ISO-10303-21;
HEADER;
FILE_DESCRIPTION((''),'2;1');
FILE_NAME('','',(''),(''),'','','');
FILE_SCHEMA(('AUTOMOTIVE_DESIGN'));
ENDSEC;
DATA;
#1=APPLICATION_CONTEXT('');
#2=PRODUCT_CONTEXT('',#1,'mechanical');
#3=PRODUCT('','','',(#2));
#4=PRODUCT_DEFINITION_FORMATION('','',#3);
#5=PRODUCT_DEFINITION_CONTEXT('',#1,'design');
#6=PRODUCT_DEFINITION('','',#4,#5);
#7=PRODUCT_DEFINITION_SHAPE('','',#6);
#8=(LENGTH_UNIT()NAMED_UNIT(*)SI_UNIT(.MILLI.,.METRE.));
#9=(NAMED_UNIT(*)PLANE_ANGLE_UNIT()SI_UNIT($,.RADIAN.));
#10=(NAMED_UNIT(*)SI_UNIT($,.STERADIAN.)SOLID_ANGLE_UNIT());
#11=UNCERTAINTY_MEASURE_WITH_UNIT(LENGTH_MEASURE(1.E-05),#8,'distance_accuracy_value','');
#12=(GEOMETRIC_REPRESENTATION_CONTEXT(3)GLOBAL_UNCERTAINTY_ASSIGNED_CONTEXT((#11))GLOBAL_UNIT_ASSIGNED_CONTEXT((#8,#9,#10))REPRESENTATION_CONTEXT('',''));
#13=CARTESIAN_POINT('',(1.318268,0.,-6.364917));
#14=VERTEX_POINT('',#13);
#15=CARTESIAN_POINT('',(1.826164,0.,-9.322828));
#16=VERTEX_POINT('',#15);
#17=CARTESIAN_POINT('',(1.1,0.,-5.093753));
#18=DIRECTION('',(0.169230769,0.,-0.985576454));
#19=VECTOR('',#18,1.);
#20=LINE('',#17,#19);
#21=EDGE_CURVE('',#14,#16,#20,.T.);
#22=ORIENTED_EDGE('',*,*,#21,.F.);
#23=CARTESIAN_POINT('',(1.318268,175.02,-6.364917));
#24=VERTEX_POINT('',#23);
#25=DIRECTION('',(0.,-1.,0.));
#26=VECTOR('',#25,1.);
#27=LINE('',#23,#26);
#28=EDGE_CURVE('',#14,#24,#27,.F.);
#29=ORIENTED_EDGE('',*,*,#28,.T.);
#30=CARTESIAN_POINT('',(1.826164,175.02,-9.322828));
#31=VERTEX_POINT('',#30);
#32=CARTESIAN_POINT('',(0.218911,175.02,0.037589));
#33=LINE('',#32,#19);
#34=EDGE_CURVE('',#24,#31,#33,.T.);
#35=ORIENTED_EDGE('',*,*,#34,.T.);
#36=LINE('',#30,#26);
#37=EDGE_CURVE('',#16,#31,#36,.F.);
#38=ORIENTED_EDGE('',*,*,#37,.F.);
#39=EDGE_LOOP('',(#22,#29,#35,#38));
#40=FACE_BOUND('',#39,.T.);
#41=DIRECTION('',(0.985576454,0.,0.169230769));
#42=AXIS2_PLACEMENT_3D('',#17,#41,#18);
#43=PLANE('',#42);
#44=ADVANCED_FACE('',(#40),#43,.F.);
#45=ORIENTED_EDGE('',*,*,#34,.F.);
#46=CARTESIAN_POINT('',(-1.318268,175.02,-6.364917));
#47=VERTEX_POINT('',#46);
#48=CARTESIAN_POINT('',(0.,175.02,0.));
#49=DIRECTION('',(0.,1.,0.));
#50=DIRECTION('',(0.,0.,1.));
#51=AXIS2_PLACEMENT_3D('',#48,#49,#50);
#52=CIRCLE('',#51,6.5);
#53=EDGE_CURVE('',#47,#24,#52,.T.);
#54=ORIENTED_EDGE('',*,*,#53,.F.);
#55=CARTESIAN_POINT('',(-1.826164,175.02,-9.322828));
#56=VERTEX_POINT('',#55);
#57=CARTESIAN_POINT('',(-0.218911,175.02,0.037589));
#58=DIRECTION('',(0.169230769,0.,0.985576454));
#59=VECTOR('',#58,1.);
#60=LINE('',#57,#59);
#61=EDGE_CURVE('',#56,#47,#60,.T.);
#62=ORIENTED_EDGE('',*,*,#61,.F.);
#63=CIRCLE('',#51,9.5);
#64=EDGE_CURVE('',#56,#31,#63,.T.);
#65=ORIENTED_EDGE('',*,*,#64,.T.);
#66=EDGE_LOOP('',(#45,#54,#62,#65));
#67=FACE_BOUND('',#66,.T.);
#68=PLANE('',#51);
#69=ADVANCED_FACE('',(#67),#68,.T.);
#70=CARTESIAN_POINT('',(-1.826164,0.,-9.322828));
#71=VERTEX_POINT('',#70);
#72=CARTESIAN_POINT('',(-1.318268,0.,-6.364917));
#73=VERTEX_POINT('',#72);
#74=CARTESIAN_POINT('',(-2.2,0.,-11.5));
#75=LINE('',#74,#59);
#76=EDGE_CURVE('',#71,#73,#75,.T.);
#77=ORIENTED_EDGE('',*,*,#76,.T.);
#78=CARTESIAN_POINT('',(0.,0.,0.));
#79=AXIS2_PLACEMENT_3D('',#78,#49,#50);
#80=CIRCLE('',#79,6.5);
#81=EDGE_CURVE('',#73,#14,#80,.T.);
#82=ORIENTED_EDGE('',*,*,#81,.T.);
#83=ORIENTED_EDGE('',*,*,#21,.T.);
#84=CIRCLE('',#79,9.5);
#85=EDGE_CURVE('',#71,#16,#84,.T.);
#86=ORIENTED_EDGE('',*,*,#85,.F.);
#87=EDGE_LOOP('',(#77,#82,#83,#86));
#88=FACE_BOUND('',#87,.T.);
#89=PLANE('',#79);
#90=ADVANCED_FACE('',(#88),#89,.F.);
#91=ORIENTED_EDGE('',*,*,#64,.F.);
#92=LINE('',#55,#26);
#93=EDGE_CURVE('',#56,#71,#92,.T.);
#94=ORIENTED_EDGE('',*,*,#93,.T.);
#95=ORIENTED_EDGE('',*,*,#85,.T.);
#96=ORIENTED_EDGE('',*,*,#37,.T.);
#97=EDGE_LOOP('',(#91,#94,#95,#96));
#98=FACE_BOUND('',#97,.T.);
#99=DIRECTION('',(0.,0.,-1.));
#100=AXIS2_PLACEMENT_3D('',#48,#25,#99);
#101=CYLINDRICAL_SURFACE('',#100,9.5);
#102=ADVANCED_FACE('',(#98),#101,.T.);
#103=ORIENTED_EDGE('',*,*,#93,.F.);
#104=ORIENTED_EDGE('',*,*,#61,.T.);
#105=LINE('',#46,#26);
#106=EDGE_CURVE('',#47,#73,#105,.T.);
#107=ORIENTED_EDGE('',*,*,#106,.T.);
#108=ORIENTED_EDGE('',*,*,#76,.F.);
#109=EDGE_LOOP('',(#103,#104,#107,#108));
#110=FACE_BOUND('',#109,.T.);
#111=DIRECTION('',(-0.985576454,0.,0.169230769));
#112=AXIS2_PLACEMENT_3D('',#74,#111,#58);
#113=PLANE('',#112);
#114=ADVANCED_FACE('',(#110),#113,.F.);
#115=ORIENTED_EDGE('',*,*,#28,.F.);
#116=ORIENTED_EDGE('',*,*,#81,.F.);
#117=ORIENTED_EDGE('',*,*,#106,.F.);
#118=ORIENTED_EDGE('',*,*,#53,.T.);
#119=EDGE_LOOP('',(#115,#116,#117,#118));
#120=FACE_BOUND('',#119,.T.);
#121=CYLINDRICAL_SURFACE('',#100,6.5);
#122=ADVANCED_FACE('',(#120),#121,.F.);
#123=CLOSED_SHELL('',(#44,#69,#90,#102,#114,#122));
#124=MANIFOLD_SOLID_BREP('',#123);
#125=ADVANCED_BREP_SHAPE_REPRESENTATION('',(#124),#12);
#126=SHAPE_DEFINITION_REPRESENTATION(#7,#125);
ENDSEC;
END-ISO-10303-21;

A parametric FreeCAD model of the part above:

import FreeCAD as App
import Part
import Sketcher
from FreeCAD import Vector


def add_polygon(sketch, points):
    """Adds a closed chain of lines whose ends are joined by coincident constraints."""
    first, n = sketch.GeometryCount, len(points)
    for a, b in zip(points, points[1:] + points[:1]):
        sketch.addGeometry(Part.LineSegment(App.Vector(*a, 0), App.Vector(*b, 0)), False)
    for i in range(n):
        sketch.addConstraint(Sketcher.Constraint("Coincident", first + i, 2, first + (i + 1) % n, 1))

doc = App.newDocument("Part")
params = doc.addObject("Spreadsheet::Sheet", "Params")
for row, (alias, value) in enumerate([
    ("sketch1_diameter", "19 mm"),
    ("sketch1_diameter2", "13 mm"),
    ("pad1_length", "175.02 mm"),
    ("sketch2_width", "2.2 mm"),
    ("sketch2_width2", "4.4 mm"),
    ("sketch2_length", "6.5 mm"),
], start=1):
    params.set(f"A{row}", alias)
    params.set(f"B{row}", "=" + value)
    params.setAlias(f"B{row}", alias)

body = doc.addObject("PartDesign::Body", "Body")

sketch1 = body.newObject("Sketcher::SketchObject", "Sketch")
sketch1.AttachmentSupport = (doc.getObject("XZ_Plane"), [""])
sketch1.MapMode = "FlatFace"
sketch1.addGeometry(Part.Circle(Vector(0, 0, 0), Vector(0, 0, 1), 9.5), False)
sketch1.addGeometry(Part.Circle(Vector(0, 0, 0), Vector(0, 0, 1), 6.5), False)
sketch1.addConstraint(Sketcher.Constraint("Coincident", 0, 3, -1, 1))
sketch1.addConstraint(Sketcher.Constraint("Coincident", 1, 3, -1, 1))
sketch1.addConstraint(Sketcher.Constraint("Diameter", 0, 19.0))
sketch1.addConstraint(Sketcher.Constraint("Diameter", 1, 13.0))
sketch1.setExpression("Constraints[2]", "Params.sketch1_diameter")
sketch1.setExpression("Constraints[3]", "Params.sketch1_diameter2")
pad1 = body.newObject("PartDesign::Pad", "Pad")
pad1.Profile = sketch1
pad1.setExpression("Length", "Params.pad1_length")
pad1.Reversed = True

sketch2 = body.newObject("Sketcher::SketchObject", "Sketch001")
sketch2.AttachmentSupport = (doc.getObject("XZ_Plane"), [""])
sketch2.MapMode = "FlatFace"
sketch2.AttachmentOffset = App.Placement(Vector(0, 0, -175.02), App.Rotation())
add_polygon(sketch2, [(-2.2, -11.5), (-1.1, -5.093753), (1.1, -5.093753), (2.2, -11.5)])
sketch2.addConstraint(Sketcher.Constraint("Horizontal", 1))
sketch2.addConstraint(Sketcher.Constraint("Horizontal", 3))
sketch2.addConstraint(Sketcher.Constraint("Equal", 0, 2))
sketch2.addConstraint(Sketcher.Constraint("DistanceX", 1, 1, 1, 2, 2.2))
sketch2.addConstraint(Sketcher.Constraint("DistanceX", 3, 2, 3, 1, 4.4))
sketch2.addConstraint(Sketcher.Constraint("Distance", 0, 6.5))
sketch2.addConstraint(Sketcher.Constraint("DistanceX", 0, 2, -1, 1, 1.1))
sketch2.addConstraint(Sketcher.Constraint("DistanceY", 2, 2, -1, 1, 11.5))
sketch2.setExpression("Constraints[7]", "Params.sketch2_width")
sketch2.setExpression("Constraints[8]", "Params.sketch2_width2")
sketch2.setExpression("Constraints[9]", "Params.sketch2_length")
pocket1 = body.newObject("PartDesign::Pocket", "Pocket")
pocket1.Profile = sketch2
pocket1.Type = "ThroughAll"
pocket1.Midplane = True

doc.recompute()
